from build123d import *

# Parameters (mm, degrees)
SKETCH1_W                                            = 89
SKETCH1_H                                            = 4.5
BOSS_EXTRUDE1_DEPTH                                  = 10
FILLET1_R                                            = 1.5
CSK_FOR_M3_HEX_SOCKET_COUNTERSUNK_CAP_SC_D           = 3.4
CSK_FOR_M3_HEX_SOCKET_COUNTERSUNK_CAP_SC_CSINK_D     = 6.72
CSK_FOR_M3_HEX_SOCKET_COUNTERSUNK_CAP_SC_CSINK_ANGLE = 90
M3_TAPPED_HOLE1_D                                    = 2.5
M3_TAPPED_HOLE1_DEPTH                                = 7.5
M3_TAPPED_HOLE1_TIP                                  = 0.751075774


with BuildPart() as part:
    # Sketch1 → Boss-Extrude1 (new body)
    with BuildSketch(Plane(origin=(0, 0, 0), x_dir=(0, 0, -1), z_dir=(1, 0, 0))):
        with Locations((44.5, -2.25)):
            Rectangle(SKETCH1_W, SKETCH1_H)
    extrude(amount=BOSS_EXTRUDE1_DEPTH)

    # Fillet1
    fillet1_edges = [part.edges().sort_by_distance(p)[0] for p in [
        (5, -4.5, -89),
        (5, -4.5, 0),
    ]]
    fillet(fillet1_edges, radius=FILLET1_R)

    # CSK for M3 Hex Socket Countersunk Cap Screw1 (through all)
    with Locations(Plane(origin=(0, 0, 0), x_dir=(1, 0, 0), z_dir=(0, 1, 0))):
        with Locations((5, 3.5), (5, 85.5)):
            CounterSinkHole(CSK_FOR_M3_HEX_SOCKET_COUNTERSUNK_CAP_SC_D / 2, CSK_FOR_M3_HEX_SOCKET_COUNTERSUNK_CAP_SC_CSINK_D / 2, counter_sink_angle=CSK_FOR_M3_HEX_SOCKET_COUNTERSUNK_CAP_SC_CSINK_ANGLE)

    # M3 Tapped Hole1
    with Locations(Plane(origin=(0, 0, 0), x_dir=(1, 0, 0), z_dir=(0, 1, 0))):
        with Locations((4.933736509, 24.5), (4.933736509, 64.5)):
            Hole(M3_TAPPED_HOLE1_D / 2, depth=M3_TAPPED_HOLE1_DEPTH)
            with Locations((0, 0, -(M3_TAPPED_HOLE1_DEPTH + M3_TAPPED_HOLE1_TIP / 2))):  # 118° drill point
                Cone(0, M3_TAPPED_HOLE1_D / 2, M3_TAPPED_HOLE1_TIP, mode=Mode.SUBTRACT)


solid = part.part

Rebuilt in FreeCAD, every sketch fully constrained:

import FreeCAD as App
import Part
import Sketcher
Q = App.Units.Quantity


def edges_at(feature, points):
    """Names of the edges that pass closest to the given points."""
    edges = feature.Shape.Edges
    near = lambda p: min(range(len(edges)), key=lambda i: edges[i].distToShape(Part.Vertex(*p))[0])
    return sorted({f"Edge{near(p) + 1}" for p in points})


def add_polygon(sketch, points):
    """Adds a closed chain of lines whose ends are joined by coincident constraints."""
    first, n = sketch.GeometryCount, len(points)
    for a, b in zip(points, points[1:] + points[:1]):
        sketch.addGeometry(Part.LineSegment(App.Vector(*a, 0), App.Vector(*b, 0)), False)
    for i in range(n):
        sketch.addConstraint(Sketcher.Constraint("Coincident", first + i, 2, first + (i + 1) % n, 1))

doc = App.newDocument("Part")
body = doc.addObject("PartDesign::Body", "Body")

sketch1 = doc.addObject("Sketcher::SketchObject", "Sketch")
body.addObject(sketch1)
sketch1.AttachmentSupport = (doc.YZ_Plane, [""])
sketch1.MapMode = "FlatFace"
add_polygon(sketch1, [(0, 0), (-4.5, 0), (-4.5, -89), (0, -89)])
sketch1.addConstraint([
    Sketcher.Constraint("Horizontal", 0),
    Sketcher.Constraint("Vertical", 1),
    Sketcher.Constraint("Horizontal", 2),
    Sketcher.Constraint("Vertical", 3),
    Sketcher.Constraint("Coincident", 3, 2, -1, 1),
    Sketcher.Constraint("DistanceY", 1, 2, 1, 1, Q("89 mm")),
    Sketcher.Constraint("DistanceX", 0, 2, 0, 1, Q("4.5 mm")),
])
pad1 = doc.addObject("PartDesign::Pad", "Pad")
body.addObject(pad1)
pad1.Profile = sketch1
pad1.Length = 10
doc.recompute()

fillet = doc.addObject("PartDesign::Fillet", "Fillet")
body.addObject(fillet)
fillet.Base = (pad1, edges_at(pad1, [(5, -4.5, -89), (5, -4.5, 0)]))
fillet.Radius = 1.5

sketch2 = doc.addObject("Sketcher::SketchObject", "Sketch001")
body.addObject(sketch2)
sketch2.AttachmentSupport = (doc.XZ_Plane, [""])
sketch2.MapMode = "FlatFace"
sketch2.addGeometry([
    Part.Circle(App.Vector(5, -3.5, 0), App.Vector(0, 0, 1), 1.7),
    Part.Circle(App.Vector(5, -85.5, 0), App.Vector(0, 0, 1), 1.7),
], False)
sketch2.addConstraint([
    Sketcher.Constraint("Equal", 0, 1),
    Sketcher.Constraint("Vertical", 0, 3, 1, 3),
    Sketcher.Constraint("Diameter", 0, Q("3.4 mm")),
    Sketcher.Constraint("DistanceX", -1, 1, 0, 3, Q("5 mm")),
    Sketcher.Constraint("DistanceY", 1, 3, 0, 3, Q("82 mm")),
    Sketcher.Constraint("DistanceY", 0, 3, -1, 1, Q("3.5 mm")),
])
doc.recompute()
hole = doc.addObject("PartDesign::Hole", "Hole")
body.addObject(hole)
hole.Profile = sketch2
hole.ThreadType = "None"
hole.Diameter = 3.4
hole.DepthType = "ThroughAll"
hole.HoleCutType = "Countersink"
hole.HoleCutDiameter = 6.72
hole.HoleCutCountersinkAngle = 90
hole.Reversed = True

sketch3 = doc.addObject("Sketcher::SketchObject", "Sketch002")
body.addObject(sketch3)
sketch3.AttachmentSupport = (doc.XZ_Plane, [""])
sketch3.MapMode = "FlatFace"
sketch3.addGeometry([
    Part.Circle(App.Vector(4.933737, -24.5, 0), App.Vector(0, 0, 1), 1.25),
    Part.Circle(App.Vector(4.933737, -64.5, 0), App.Vector(0, 0, 1), 1.25),
], False)
sketch3.addConstraint([
    Sketcher.Constraint("Equal", 0, 1),
    Sketcher.Constraint("Vertical", 0, 3, 1, 3),
    Sketcher.Constraint("Diameter", 0, Q("2.5 mm")),
    Sketcher.Constraint("DistanceY", 1, 3, 0, 3, Q("40 mm")),
    Sketcher.Constraint("DistanceY", 0, 3, -1, 1, Q("24.5 mm")),
    Sketcher.Constraint("DistanceX", -1, 1, 0, 3, Q("4.933737 mm")),
])
doc.recompute()
hole2 = doc.addObject("PartDesign::Hole", "Hole001")
body.addObject(hole2)
hole2.Profile = sketch3
hole2.ThreadType = "None"
hole2.Diameter = 2.5
hole2.DepthType = "Dimension"
hole2.Depth = 7.5
hole2.DrillPoint = "Angled"
hole2.DrillPointAngle = 118
hole2.Reversed = True

doc.recompute()
